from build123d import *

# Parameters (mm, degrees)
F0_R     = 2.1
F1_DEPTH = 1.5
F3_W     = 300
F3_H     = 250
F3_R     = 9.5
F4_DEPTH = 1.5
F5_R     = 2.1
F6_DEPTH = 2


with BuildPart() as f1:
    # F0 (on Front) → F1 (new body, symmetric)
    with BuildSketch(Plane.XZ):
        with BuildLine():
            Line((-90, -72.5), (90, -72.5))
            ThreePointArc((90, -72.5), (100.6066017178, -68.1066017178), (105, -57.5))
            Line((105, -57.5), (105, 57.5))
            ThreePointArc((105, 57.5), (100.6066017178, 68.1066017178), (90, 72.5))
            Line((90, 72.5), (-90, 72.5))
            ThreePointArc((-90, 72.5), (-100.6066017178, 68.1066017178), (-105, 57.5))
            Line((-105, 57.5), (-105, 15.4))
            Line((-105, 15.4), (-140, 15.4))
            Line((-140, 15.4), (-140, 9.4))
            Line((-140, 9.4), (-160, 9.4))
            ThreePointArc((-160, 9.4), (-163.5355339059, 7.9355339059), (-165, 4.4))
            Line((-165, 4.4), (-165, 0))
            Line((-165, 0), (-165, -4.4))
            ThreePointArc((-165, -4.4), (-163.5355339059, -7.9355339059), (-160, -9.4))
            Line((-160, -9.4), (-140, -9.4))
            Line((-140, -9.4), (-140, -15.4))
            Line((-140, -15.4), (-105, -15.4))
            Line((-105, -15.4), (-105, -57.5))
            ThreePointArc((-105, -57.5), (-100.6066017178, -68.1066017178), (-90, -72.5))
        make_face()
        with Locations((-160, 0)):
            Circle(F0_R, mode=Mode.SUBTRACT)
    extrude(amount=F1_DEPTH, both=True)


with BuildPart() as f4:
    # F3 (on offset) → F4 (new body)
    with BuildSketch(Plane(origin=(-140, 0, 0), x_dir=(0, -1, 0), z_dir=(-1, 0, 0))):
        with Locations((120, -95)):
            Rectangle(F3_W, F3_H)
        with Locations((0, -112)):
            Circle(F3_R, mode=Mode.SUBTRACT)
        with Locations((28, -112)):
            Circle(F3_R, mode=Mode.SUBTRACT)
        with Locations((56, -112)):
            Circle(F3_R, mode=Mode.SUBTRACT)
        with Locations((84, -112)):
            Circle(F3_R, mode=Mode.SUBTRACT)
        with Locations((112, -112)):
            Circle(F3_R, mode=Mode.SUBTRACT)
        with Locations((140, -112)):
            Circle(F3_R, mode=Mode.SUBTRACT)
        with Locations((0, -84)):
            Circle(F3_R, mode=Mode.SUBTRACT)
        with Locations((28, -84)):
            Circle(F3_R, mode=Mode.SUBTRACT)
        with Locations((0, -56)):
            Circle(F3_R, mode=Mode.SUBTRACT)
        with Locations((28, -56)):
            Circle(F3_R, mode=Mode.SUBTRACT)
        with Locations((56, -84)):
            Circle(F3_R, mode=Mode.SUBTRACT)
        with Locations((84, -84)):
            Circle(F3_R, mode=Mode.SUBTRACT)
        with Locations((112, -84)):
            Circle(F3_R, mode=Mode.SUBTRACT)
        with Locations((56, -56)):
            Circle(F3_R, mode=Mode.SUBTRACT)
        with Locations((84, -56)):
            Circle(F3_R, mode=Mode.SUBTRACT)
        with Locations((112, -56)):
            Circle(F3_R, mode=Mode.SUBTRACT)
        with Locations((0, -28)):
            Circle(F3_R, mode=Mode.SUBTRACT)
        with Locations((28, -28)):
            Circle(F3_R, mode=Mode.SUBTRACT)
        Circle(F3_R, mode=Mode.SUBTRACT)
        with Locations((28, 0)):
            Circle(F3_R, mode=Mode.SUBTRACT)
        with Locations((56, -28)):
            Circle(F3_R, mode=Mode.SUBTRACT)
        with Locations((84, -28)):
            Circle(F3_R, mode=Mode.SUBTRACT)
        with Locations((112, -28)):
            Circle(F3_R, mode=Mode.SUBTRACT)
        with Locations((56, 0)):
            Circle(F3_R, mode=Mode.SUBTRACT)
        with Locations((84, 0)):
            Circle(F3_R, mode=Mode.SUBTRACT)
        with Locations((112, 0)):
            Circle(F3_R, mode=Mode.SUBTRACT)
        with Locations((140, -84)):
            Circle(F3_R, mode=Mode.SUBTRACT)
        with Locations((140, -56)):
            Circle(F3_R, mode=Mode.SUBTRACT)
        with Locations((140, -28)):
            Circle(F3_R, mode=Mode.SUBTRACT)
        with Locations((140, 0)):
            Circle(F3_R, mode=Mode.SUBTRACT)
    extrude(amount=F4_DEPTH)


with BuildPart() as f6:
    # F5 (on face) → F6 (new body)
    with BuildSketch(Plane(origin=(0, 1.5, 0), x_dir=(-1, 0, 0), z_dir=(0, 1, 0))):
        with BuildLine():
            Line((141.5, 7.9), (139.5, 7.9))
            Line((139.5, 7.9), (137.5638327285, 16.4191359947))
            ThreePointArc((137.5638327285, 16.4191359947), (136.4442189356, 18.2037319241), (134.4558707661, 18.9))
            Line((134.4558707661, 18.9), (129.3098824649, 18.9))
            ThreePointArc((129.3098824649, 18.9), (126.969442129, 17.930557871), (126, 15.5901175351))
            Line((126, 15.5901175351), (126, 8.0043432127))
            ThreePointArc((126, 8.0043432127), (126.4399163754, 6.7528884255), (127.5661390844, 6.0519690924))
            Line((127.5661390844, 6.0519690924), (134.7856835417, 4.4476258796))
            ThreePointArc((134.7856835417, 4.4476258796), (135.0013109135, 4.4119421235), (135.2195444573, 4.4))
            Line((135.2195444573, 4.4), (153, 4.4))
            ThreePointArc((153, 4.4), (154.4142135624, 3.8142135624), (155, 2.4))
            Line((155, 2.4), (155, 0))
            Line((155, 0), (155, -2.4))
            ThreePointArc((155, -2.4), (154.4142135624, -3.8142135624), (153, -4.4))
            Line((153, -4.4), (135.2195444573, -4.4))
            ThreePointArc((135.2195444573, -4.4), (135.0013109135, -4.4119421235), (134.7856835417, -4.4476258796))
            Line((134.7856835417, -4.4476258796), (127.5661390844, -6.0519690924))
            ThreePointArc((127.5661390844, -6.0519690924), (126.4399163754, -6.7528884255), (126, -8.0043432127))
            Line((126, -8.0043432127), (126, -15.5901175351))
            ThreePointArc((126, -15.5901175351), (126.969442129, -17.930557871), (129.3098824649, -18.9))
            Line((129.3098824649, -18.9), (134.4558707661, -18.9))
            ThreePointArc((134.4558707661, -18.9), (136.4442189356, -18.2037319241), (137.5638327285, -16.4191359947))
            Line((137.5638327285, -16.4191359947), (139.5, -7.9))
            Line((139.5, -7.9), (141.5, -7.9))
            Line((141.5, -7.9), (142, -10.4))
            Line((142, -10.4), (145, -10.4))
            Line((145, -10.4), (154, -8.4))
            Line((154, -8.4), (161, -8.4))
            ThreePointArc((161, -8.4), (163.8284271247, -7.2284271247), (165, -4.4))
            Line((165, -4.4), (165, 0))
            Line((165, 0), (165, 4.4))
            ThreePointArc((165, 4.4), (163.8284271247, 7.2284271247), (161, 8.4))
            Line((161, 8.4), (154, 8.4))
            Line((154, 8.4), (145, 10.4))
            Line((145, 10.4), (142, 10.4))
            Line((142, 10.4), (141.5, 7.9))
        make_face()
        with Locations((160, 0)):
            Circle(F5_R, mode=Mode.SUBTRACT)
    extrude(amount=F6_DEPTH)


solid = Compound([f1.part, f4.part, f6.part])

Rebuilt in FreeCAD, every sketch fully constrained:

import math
import FreeCAD as App
import Part
import Sketcher
from FreeCAD import Vector
Q = App.Units.Quantity

doc = App.newDocument("Part")
body = doc.addObject("PartDesign::Body", "Body")

# Sketch on XZ plane
sketch1 = body.newObject("Sketcher::SketchObject", "Sketch")
sketch1.AttachmentSupport = (doc.getObject("XZ_Plane"), [""])
sketch1.MapMode = "FlatFace"
sketch1.addGeometry(Part.LineSegment(Vector(-90, -72.5, 0), Vector(90, -72.5, 0)), False)
sketch1.addGeometry(Part.ArcOfCircle(Part.Circle(Vector(90, -57.5, 0), Vector(0, 0, 1), 15), math.radians(-90), math.radians(0)), False)
sketch1.addGeometry(Part.LineSegment(Vector(105, -57.5, 0), Vector(105, 57.5, 0)), False)
sketch1.addGeometry(Part.ArcOfCircle(Part.Circle(Vector(90, 57.5, 0), Vector(0, 0, 1), 15), math.radians(0), math.radians(90)), False)
sketch1.addGeometry(Part.LineSegment(Vector(90, 72.5, 0), Vector(-90, 72.5, 0)), False)
sketch1.addGeometry(Part.ArcOfCircle(Part.Circle(Vector(-90, 57.5, 0), Vector(0, 0, 1), 15), math.radians(90), math.radians(180)), False)
sketch1.addGeometry(Part.LineSegment(Vector(-105, 57.5, 0), Vector(-105, 15.4, 0)), False)
sketch1.addGeometry(Part.LineSegment(Vector(-105, 15.4, 0), Vector(-140, 15.4, 0)), False)
sketch1.addGeometry(Part.LineSegment(Vector(-140, 15.4, 0), Vector(-140, 9.4, 0)), False)
sketch1.addGeometry(Part.LineSegment(Vector(-140, 9.4, 0), Vector(-160, 9.4, 0)), False)
sketch1.addGeometry(Part.ArcOfCircle(Part.Circle(Vector(-160, 4.4, 0), Vector(0, 0, 1), 5), math.radians(90), math.radians(180)), False)
sketch1.addGeometry(Part.LineSegment(Vector(-165, 4.4, 0), Vector(-165, -4.4, 0)), False)
sketch1.addGeometry(Part.ArcOfCircle(Part.Circle(Vector(-160, -4.4, 0), Vector(0, 0, 1), 5), math.radians(180), math.radians(270)), False)
sketch1.addGeometry(Part.LineSegment(Vector(-160, -9.4, 0), Vector(-140, -9.4, 0)), False)
sketch1.addGeometry(Part.LineSegment(Vector(-140, -9.4, 0), Vector(-140, -15.4, 0)), False)
sketch1.addGeometry(Part.LineSegment(Vector(-140, -15.4, 0), Vector(-105, -15.4, 0)), False)
sketch1.addGeometry(Part.LineSegment(Vector(-105, -15.4, 0), Vector(-105, -57.5, 0)), False)
sketch1.addGeometry(Part.ArcOfCircle(Part.Circle(Vector(-90, -57.5, 0), Vector(0, 0, 1), 15), math.radians(180), math.radians(270)), False)
sketch1.addGeometry(Part.Circle(Vector(-160, 0, 0), Vector(0, 0, 1), 2.1), False)
sketch1.addConstraint(Sketcher.Constraint("Tangent", 0, 2, 1, 1))
sketch1.addConstraint(Sketcher.Constraint("Tangent", 1, 2, 2, 1))
sketch1.addConstraint(Sketcher.Constraint("Tangent", 2, 2, 3, 1))
sketch1.addConstraint(Sketcher.Constraint("Tangent", 3, 2, 4, 1))
sketch1.addConstraint(Sketcher.Constraint("Tangent", 4, 2, 5, 1))
sketch1.addConstraint(Sketcher.Constraint("Tangent", 5, 2, 6, 1))
sketch1.addConstraint(Sketcher.Constraint("Coincident", 6, 2, 7, 1))
sketch1.addConstraint(Sketcher.Constraint("Coincident", 7, 2, 8, 1))
sketch1.addConstraint(Sketcher.Constraint("Coincident", 8, 2, 9, 1))
sketch1.addConstraint(Sketcher.Constraint("Tangent", 9, 2, 10, 1))
sketch1.addConstraint(Sketcher.Constraint("Tangent", 10, 2, 11, 1))
sketch1.addConstraint(Sketcher.Constraint("Tangent", 11, 2, 12, 1))
sketch1.addConstraint(Sketcher.Constraint("Tangent", 12, 2, 13, 1))
sketch1.addConstraint(Sketcher.Constraint("Coincident", 13, 2, 14, 1))
sketch1.addConstraint(Sketcher.Constraint("Coincident", 14, 2, 15, 1))
sketch1.addConstraint(Sketcher.Constraint("Coincident", 15, 2, 16, 1))
sketch1.addConstraint(Sketcher.Constraint("Tangent", 16, 2, 17, 1))
sketch1.addConstraint(Sketcher.Constraint("Tangent", 17, 2, 0, 1))
sketch1.addConstraint(Sketcher.Constraint("Horizontal", 0))
sketch1.addConstraint(Sketcher.Constraint("Vertical", 2))
sketch1.addConstraint(Sketcher.Constraint("Horizontal", 4))
sketch1.addConstraint(Sketcher.Constraint("Vertical", 6))
sketch1.addConstraint(Sketcher.Constraint("Horizontal", 7))
sketch1.addConstraint(Sketcher.Constraint("Vertical", 8))
sketch1.addConstraint(Sketcher.Constraint("Horizontal", 9))
sketch1.addConstraint(Sketcher.Constraint("Vertical", 11))
sketch1.addConstraint(Sketcher.Constraint("Horizontal", 13))
sketch1.addConstraint(Sketcher.Constraint("Vertical", 14))
sketch1.addConstraint(Sketcher.Constraint("Horizontal", 15))
sketch1.addConstraint(Sketcher.Constraint("Vertical", 16))
sketch1.addConstraint(Sketcher.Constraint("Equal", 1, 3))
sketch1.addConstraint(Sketcher.Constraint("Equal", 3, 5))
sketch1.addConstraint(Sketcher.Constraint("Equal", 10, 12))
sketch1.addConstraint(Sketcher.Constraint("Equal", 5, 17))
sketch1.addConstraint(Sketcher.Constraint("Symmetric", 1, 3, 5, 3, -1, 1))
sketch1.addConstraint(Sketcher.Constraint("Symmetric", 8, 2, 13, 2, -1))
sketch1.addConstraint(Sketcher.Constraint("Symmetric", 6, 2, 15, 2, -1))
sketch1.addConstraint(Sketcher.Constraint("PointOnObject", 18, 3, -1))
sketch1.addConstraint(Sketcher.Constraint("Vertical", 12, 3, 18, 3))
sketch1.addConstraint(Sketcher.Constraint("Radius", 1, Q("15 mm")))
sketch1.addConstraint(Sketcher.Constraint("Radius", 10, Q("5 mm")))
sketch1.addConstraint(Sketcher.Constraint("Diameter", 18, Q("4.2 mm")))
sketch1.addConstraint(Sketcher.Constraint("DistanceX", 0, 1, 0, 2, Q("180 mm")))
sketch1.addConstraint(Sketcher.Constraint("DistanceX", 7, 2, 7, 1, Q("35 mm")))
sketch1.addConstraint(Sketcher.Constraint("DistanceX", 9, 2, 9, 1, Q("20 mm")))
sketch1.addConstraint(Sketcher.Constraint("DistanceY", 2, 1, 2, 2, Q("115 mm")))
sketch1.addConstraint(Sketcher.Constraint("DistanceY", 8, 2, 8, 1, Q("6 mm")))
sketch1.addConstraint(Sketcher.Constraint("DistanceY", 6, 2, 6, 1, Q("42.1 mm")))
pad1 = body.newObject("PartDesign::Pad", "Pad")
pad1.Profile = sketch1
pad1.Length = 3
pad1.Midplane = True
body2 = doc.addObject("PartDesign::Body", "Body001")

# Sketch on YZ plane
sketch2 = body2.newObject("Sketcher::SketchObject", "Sketch001")
sketch2.AttachmentSupport = (doc.getObject("YZ_Plane001"), [""])
sketch2.MapMode = "FlatFace"
sketch2.AttachmentOffset = App.Placement(Vector(0, 0, -140), App.Rotation())
sketch2.addGeometry(Part.LineSegment(Vector(30, 30, 0), Vector(30, -220, 0)), False)
sketch2.addGeometry(Part.LineSegment(Vector(30, -220, 0), Vector(-270, -220, 0)), False)
sketch2.addGeometry(Part.LineSegment(Vector(-270, -220, 0), Vector(-270, 30, 0)), False)
sketch2.addGeometry(Part.LineSegment(Vector(-270, 30, 0), Vector(30, 30, 0)), False)
sketch2.addGeometry(Part.Circle(Vector(0, -112, 0), Vector(0, 0, 1), 9.5), False)
sketch2.addGeometry(Part.Circle(Vector(-28, -112, 0), Vector(0, 0, 1), 9.5), False)
sketch2.addGeometry(Part.Circle(Vector(-56, -112, 0), Vector(0, 0, 1), 9.5), False)
sketch2.addGeometry(Part.Circle(Vector(0, -84, 0), Vector(0, 0, 1), 9.5), False)
sketch2.addGeometry(Part.Circle(Vector(-28, -84, 0), Vector(0, 0, 1), 9.5), False)
sketch2.addGeometry(Part.Circle(Vector(-56, -84, 0), Vector(0, 0, 1), 9.5), False)
sketch2.addGeometry(Part.Circle(Vector(-84, -112, 0), Vector(0, 0, 1), 9.5), False)
sketch2.addGeometry(Part.Circle(Vector(-112, -112, 0), Vector(0, 0, 1), 9.5), False)
sketch2.addGeometry(Part.Circle(Vector(-140, -112, 0), Vector(0, 0, 1), 9.5), False)
sketch2.addGeometry(Part.Circle(Vector(-84, -84, 0), Vector(0, 0, 1), 9.5), False)
sketch2.addGeometry(Part.Circle(Vector(-112, -84, 0), Vector(0, 0, 1), 9.5), False)
sketch2.addGeometry(Part.Circle(Vector(-140, -84, 0), Vector(0, 0, 1), 9.5), False)
sketch2.addGeometry(Part.Circle(Vector(0, -56, 0), Vector(0, 0, 1), 9.5), False)
sketch2.addGeometry(Part.Circle(Vector(-28, -56, 0), Vector(0, 0, 1), 9.5), False)
sketch2.addGeometry(Part.Circle(Vector(0, -28, 0), Vector(0, 0, 1), 9.5), False)
sketch2.addGeometry(Part.Circle(Vector(-28, -28, 0), Vector(0, 0, 1), 9.5), False)
sketch2.addGeometry(Part.Circle(Vector(-56, -56, 0), Vector(0, 0, 1), 9.5), False)
sketch2.addGeometry(Part.Circle(Vector(-56, -28, 0), Vector(0, 0, 1), 9.5), False)
sketch2.addGeometry(Part.Circle(Vector(0, 0, 0), Vector(0, 0, 1), 9.5), False)
sketch2.addGeometry(Part.Circle(Vector(-28, 0, 0), Vector(0, 0, 1), 9.5), False)
sketch2.addGeometry(Part.Circle(Vector(-56, 0, 0), Vector(0, 0, 1), 9.5), False)
sketch2.addGeometry(Part.Circle(Vector(-84, -56, 0), Vector(0, 0, 1), 9.5), False)
sketch2.addGeometry(Part.Circle(Vector(-84, -28, 0), Vector(0, 0, 1), 9.5), False)
sketch2.addGeometry(Part.Circle(Vector(-112, -56, 0), Vector(0, 0, 1), 9.5), False)
sketch2.addGeometry(Part.Circle(Vector(-140, -56, 0), Vector(0, 0, 1), 9.5), False)
sketch2.addGeometry(Part.Circle(Vector(-112, -28, 0), Vector(0, 0, 1), 9.5), False)
sketch2.addGeometry(Part.Circle(Vector(-140, -28, 0), Vector(0, 0, 1), 9.5), False)
sketch2.addGeometry(Part.Circle(Vector(-84, 0, 0), Vector(0, 0, 1), 9.5), False)
sketch2.addGeometry(Part.Circle(Vector(-112, 0, 0), Vector(0, 0, 1), 9.5), False)
sketch2.addGeometry(Part.Circle(Vector(-140, 0, 0), Vector(0, 0, 1), 9.5), False)
sketch2.addConstraint(Sketcher.Constraint("Coincident", 0, 2, 1, 1))
sketch2.addConstraint(Sketcher.Constraint("Coincident", 1, 2, 2, 1))
sketch2.addConstraint(Sketcher.Constraint("Coincident", 2, 2, 3, 1))
sketch2.addConstraint(Sketcher.Constraint("Coincident", 3, 2, 0, 1))
sketch2.addConstraint(Sketcher.Constraint("Vertical", 0))
sketch2.addConstraint(Sketcher.Constraint("Horizontal", 1))
sketch2.addConstraint(Sketcher.Constraint("Vertical", 2))
sketch2.addConstraint(Sketcher.Constraint("Horizontal", 3))
sketch2.addConstraint(Sketcher.Constraint("Coincident", 22, 3, -1, 1))
sketch2.addConstraint(Sketcher.Constraint("Equal", 4, 5))
sketch2.addConstraint(Sketcher.Constraint("Equal", 5, 6))
sketch2.addConstraint(Sketcher.Constraint("Equal", 6, 7))
sketch2.addConstraint(Sketcher.Constraint("Equal", 7, 8))
sketch2.addConstraint(Sketcher.Constraint("Equal", 8, 9))
sketch2.addConstraint(Sketcher.Constraint("Equal", 9, 10))
sketch2.addConstraint(Sketcher.Constraint("Equal", 10, 11))
sketch2.addConstraint(Sketcher.Constraint("Equal", 11, 12))
sketch2.addConstraint(Sketcher.Constraint("Equal", 12, 13))
sketch2.addConstraint(Sketcher.Constraint("Equal", 13, 14))
sketch2.addConstraint(Sketcher.Constraint("Equal", 14, 15))
sketch2.addConstraint(Sketcher.Constraint("Equal", 15, 16))
sketch2.addConstraint(Sketcher.Constraint("Equal", 16, 17))
sketch2.addConstraint(Sketcher.Constraint("Equal", 17, 18))
sketch2.addConstraint(Sketcher.Constraint("Equal", 18, 19))
sketch2.addConstraint(Sketcher.Constraint("Equal", 19, 20))
sketch2.addConstraint(Sketcher.Constraint("Equal", 20, 21))
sketch2.addConstraint(Sketcher.Constraint("Equal", 21, 22))
sketch2.addConstraint(Sketcher.Constraint("Equal", 22, 23))
sketch2.addConstraint(Sketcher.Constraint("Equal", 23, 24))
sketch2.addConstraint(Sketcher.Constraint("Equal", 24, 25))
sketch2.addConstraint(Sketcher.Constraint("Equal", 25, 26))
sketch2.addConstraint(Sketcher.Constraint("Equal", 26, 27))
sketch2.addConstraint(Sketcher.Constraint("Equal", 27, 28))
sketch2.addConstraint(Sketcher.Constraint("Equal", 28, 29))
sketch2.addConstraint(Sketcher.Constraint("Equal", 29, 30))
sketch2.addConstraint(Sketcher.Constraint("Equal", 30, 31))
sketch2.addConstraint(Sketcher.Constraint("Equal", 31, 32))
sketch2.addConstraint(Sketcher.Constraint("Equal", 32, 33))
sketch2.addConstraint(Sketcher.Constraint("PointOnObject", 4, 3, -2))
sketch2.addConstraint(Sketcher.Constraint("PointOnObject", 7, 3, -2))
sketch2.addConstraint(Sketcher.Constraint("PointOnObject", 16, 3, -2))
sketch2.addConstraint(Sketcher.Constraint("PointOnObject", 18, 3, -2))
sketch2.addConstraint(Sketcher.Constraint("PointOnObject", 23, 3, -1))
sketch2.addConstraint(Sketcher.Constraint("PointOnObject", 24, 3, -1))
sketch2.addConstraint(Sketcher.Constraint("PointOnObject", 31, 3, -1))
sketch2.addConstraint(Sketcher.Constraint("PointOnObject", 32, 3, -1))
sketch2.addConstraint(Sketcher.Constraint("PointOnObject", 33, 3, -1))
sketch2.addConstraint(Sketcher.Constraint("Horizontal", 4, 3, 5, 3))
sketch2.addConstraint(Sketcher.Constraint("Horizontal", 5, 3, 6, 3))
sketch2.addConstraint(Sketcher.Constraint("Horizontal", 7, 3, 8, 3))
sketch2.addConstraint(Sketcher.Constraint("Horizontal", 8, 3, 9, 3))
sketch2.addConstraint(Sketcher.Constraint("Horizontal", 6, 3, 10, 3))
sketch2.addConstraint(Sketcher.Constraint("Horizontal", 10, 3, 11, 3))
sketch2.addConstraint(Sketcher.Constraint("Horizontal", 11, 3, 12, 3))
sketch2.addConstraint(Sketcher.Constraint("Horizontal", 9, 3, 13, 3))
sketch2.addConstraint(Sketcher.Constraint("Horizontal", 13, 3, 14, 3))
sketch2.addConstraint(Sketcher.Constraint("Horizontal", 14, 3, 15, 3))
sketch2.addConstraint(Sketcher.Constraint("Horizontal", 16, 3, 17, 3))
sketch2.addConstraint(Sketcher.Constraint("Horizontal", 18, 3, 19, 3))
sketch2.addConstraint(Sketcher.Constraint("Horizontal", 17, 3, 20, 3))
sketch2.addConstraint(Sketcher.Constraint("Horizontal", 19, 3, 21, 3))
sketch2.addConstraint(Sketcher.Constraint("Horizontal", 20, 3, 25, 3))
sketch2.addConstraint(Sketcher.Constraint("Horizontal", 21, 3, 26, 3))
sketch2.addConstraint(Sketcher.Constraint("Horizontal", 25, 3, 27, 3))
sketch2.addConstraint(Sketcher.Constraint("Horizontal", 27, 3, 28, 3))
sketch2.addConstraint(Sketcher.Constraint("Horizontal", 26, 3, 29, 3))
sketch2.addConstraint(Sketcher.Constraint("Horizontal", 29, 3, 30, 3))
sketch2.addConstraint(Sketcher.Constraint("Vertical", 5, 3, 8, 3))
sketch2.addConstraint(Sketcher.Constraint("Vertical", 6, 3, 9, 3))
sketch2.addConstraint(Sketcher.Constraint("Vertical", 10, 3, 13, 3))
sketch2.addConstraint(Sketcher.Constraint("Vertical", 11, 3, 14, 3))
sketch2.addConstraint(Sketcher.Constraint("Vertical", 12, 3, 15, 3))
sketch2.addConstraint(Sketcher.Constraint("Vertical", 8, 3, 17, 3))
sketch2.addConstraint(Sketcher.Constraint("Vertical", 17, 3, 19, 3))
sketch2.addConstraint(Sketcher.Constraint("Vertical", 9, 3, 20, 3))
sketch2.addConstraint(Sketcher.Constraint("Vertical", 20, 3, 21, 3))
sketch2.addConstraint(Sketcher.Constraint("Vertical", 19, 3, 23, 3))
sketch2.addConstraint(Sketcher.Constraint("Vertical", 21, 3, 24, 3))
sketch2.addConstraint(Sketcher.Constraint("Vertical", 13, 3, 25, 3))
sketch2.addConstraint(Sketcher.Constraint("Vertical", 25, 3, 26, 3))
sketch2.addConstraint(Sketcher.Constraint("Vertical", 14, 3, 27, 3))
sketch2.addConstraint(Sketcher.Constraint("Vertical", 15, 3, 28, 3))
sketch2.addConstraint(Sketcher.Constraint("Vertical", 27, 3, 29, 3))
sketch2.addConstraint(Sketcher.Constraint("Vertical", 28, 3, 30, 3))
sketch2.addConstraint(Sketcher.Constraint("Vertical", 26, 3, 31, 3))
sketch2.addConstraint(Sketcher.Constraint("Vertical", 29, 3, 32, 3))
sketch2.addConstraint(Sketcher.Constraint("Vertical", 30, 3, 33, 3))
sketch2.addConstraint(Sketcher.Constraint("Diameter", 4, Q("19 mm")))
sketch2.addConstraint(Sketcher.Constraint("DistanceX", 1, 2, 1, 1, Q("300 mm")))
sketch2.addConstraint(Sketcher.Constraint("DistanceY", 0, 2, 0, 1, Q("250 mm")))
sketch2.addConstraint(Sketcher.Constraint("DistanceY", 4, 3, -1, 1, Q("112 mm")))
sketch2.addConstraint(Sketcher.Constraint("DistanceX", 5, 3, -1, 1, Q("28 mm")))
sketch2.addConstraint(Sketcher.Constraint("DistanceX", 6, 3, -1, 1, Q("56 mm")))
sketch2.addConstraint(Sketcher.Constraint("DistanceY", 7, 3, -1, 1, Q("84 mm")))
sketch2.addConstraint(Sketcher.Constraint("DistanceX", 10, 3, -1, 1, Q("84 mm")))
sketch2.addConstraint(Sketcher.Constraint("DistanceX", 11, 3, -1, 1, Q("112 mm")))
sketch2.addConstraint(Sketcher.Constraint("DistanceX", 12, 3, -1, 1, Q("140 mm")))
sketch2.addConstraint(Sketcher.Constraint("DistanceY", 16, 3, -1, 1, Q("56 mm")))
sketch2.addConstraint(Sketcher.Constraint("DistanceY", 18, 3, -1, 1, Q("28 mm")))
sketch2.addConstraint(Sketcher.Constraint("DistanceX", -1, 1, 0, 2, Q("30 mm")))
sketch2.addConstraint(Sketcher.Constraint("DistanceY", 0, 2, -1, 1, Q("220 mm")))
pad2 = body2.newObject("PartDesign::Pad", "Pad001")
pad2.Profile = sketch2
pad2.Length = 1.5
pad2.Reversed = True
body3 = doc.addObject("PartDesign::Body", "Body002")

# Sketch on XZ plane
sketch3 = body3.newObject("Sketcher::SketchObject", "Sketch002")
sketch3.AttachmentSupport = (doc.getObject("XZ_Plane002"), [""])
sketch3.MapMode = "FlatFace"
sketch3.AttachmentOffset = App.Placement(Vector(0, 0, -1.5), App.Rotation())
sketch3.addGeometry(Part.LineSegment(Vector(-141.5, 7.9, 0), Vector(-139.5, 7.9, 0)), False)
sketch3.addGeometry(Part.LineSegment(Vector(-139.5, 7.9, 0), Vector(-137.563833, 16.419136, 0)), False)
sketch3.addGeometry(Part.ArcOfCircle(Part.Circle(Vector(-134.455871, 15.712781, 0), Vector(0, 0, 1), 3.187219), math.radians(90), math.radians(167.195734)), False)
sketch3.addGeometry(Part.LineSegment(Vector(-134.455871, 18.9, 0), Vector(-129.309882, 18.9, 0)), False)
sketch3.addGeometry(Part.ArcOfCircle(Part.Circle(Vector(-129.309882, 15.590118, 0), Vector(0, 0, 1), 3.309882), math.radians(0), math.radians(90)), False)
sketch3.addGeometry(Part.LineSegment(Vector(-126, 15.590118, 0), Vector(-126, 8.004343, 0)), False)
sketch3.addGeometry(Part.ArcOfCircle(Part.Circle(Vector(-128, 8.004343, 0), Vector(0, 0, 1), 2), math.radians(-77.471192), math.radians(0)), False)
sketch3.addGeometry(Part.LineSegment(Vector(-127.566139, 6.051969, 0), Vector(-134.785684, 4.447626, 0)), False)
sketch3.addGeometry(Part.ArcOfCircle(Part.Circle(Vector(-135.219544, 6.4, 0), Vector(0, 0, 1), 2), math.radians(-90), math.radians(-77.471192)), False)
sketch3.addGeometry(Part.LineSegment(Vector(-135.219544, 4.4, 0), Vector(-153, 4.4, 0)), False)
sketch3.addGeometry(Part.ArcOfCircle(Part.Circle(Vector(-153, 2.4, 0), Vector(0, 0, 1), 2), math.radians(90), math.radians(180)), False)
sketch3.addGeometry(Part.LineSegment(Vector(-155, 2.4, 0), Vector(-155, -2.4, 0)), False)
sketch3.addGeometry(Part.ArcOfCircle(Part.Circle(Vector(-153, -2.4, 0), Vector(0, 0, 1), 2), math.radians(180), math.radians(270)), False)
sketch3.addGeometry(Part.LineSegment(Vector(-153, -4.4, 0), Vector(-135.219544, -4.4, 0)), False)
sketch3.addGeometry(Part.ArcOfCircle(Part.Circle(Vector(-135.219544, -6.4, 0), Vector(0, 0, 1), 2), math.radians(77.471192), math.radians(90)), False)
sketch3.addGeometry(Part.LineSegment(Vector(-134.785684, -4.447626, 0), Vector(-127.566139, -6.051969, 0)), False)
sketch3.addGeometry(Part.ArcOfCircle(Part.Circle(Vector(-128, -8.004343, 0), Vector(0, 0, 1), 2), math.radians(0), math.radians(77.471192)), False)
sketch3.addGeometry(Part.LineSegment(Vector(-126, -8.004343, 0), Vector(-126, -15.590118, 0)), False)
sketch3.addGeometry(Part.ArcOfCircle(Part.Circle(Vector(-129.309882, -15.590118, 0), Vector(0, 0, 1), 3.309882), math.radians(-90), math.radians(0)), False)
sketch3.addGeometry(Part.LineSegment(Vector(-129.309882, -18.9, 0), Vector(-134.455871, -18.9, 0)), False)
sketch3.addGeometry(Part.ArcOfCircle(Part.Circle(Vector(-134.455871, -15.712781, 0), Vector(0, 0, 1), 3.187219), math.radians(-167.195734), math.radians(-90)), False)
sketch3.addGeometry(Part.LineSegment(Vector(-137.563833, -16.419136, 0), Vector(-139.5, -7.9, 0)), False)
sketch3.addGeometry(Part.LineSegment(Vector(-139.5, -7.9, 0), Vector(-141.5, -7.9, 0)), False)
sketch3.addGeometry(Part.LineSegment(Vector(-141.5, -7.9, 0), Vector(-142, -10.4, 0)), False)
sketch3.addGeometry(Part.LineSegment(Vector(-142, -10.4, 0), Vector(-145, -10.4, 0)), False)
sketch3.addGeometry(Part.LineSegment(Vector(-145, -10.4, 0), Vector(-154, -8.4, 0)), False)
sketch3.addGeometry(Part.LineSegment(Vector(-154, -8.4, 0), Vector(-161, -8.4, 0)), False)
sketch3.addGeometry(Part.ArcOfCircle(Part.Circle(Vector(-161, -4.4, 0), Vector(0, 0, 1), 4), math.radians(180), math.radians(270)), False)
sketch3.addGeometry(Part.LineSegment(Vector(-165, -4.4, 0), Vector(-165, 4.4, 0)), False)
sketch3.addGeometry(Part.ArcOfCircle(Part.Circle(Vector(-161, 4.4, 0), Vector(0, 0, 1), 4), math.radians(90), math.radians(180)), False)
sketch3.addGeometry(Part.LineSegment(Vector(-161, 8.4, 0), Vector(-154, 8.4, 0)), False)
sketch3.addGeometry(Part.LineSegment(Vector(-154, 8.4, 0), Vector(-145, 10.4, 0)), False)
sketch3.addGeometry(Part.LineSegment(Vector(-145, 10.4, 0), Vector(-142, 10.4, 0)), False)
sketch3.addGeometry(Part.LineSegment(Vector(-142, 10.4, 0), Vector(-141.5, 7.9, 0)), False)
sketch3.addGeometry(Part.Circle(Vector(-160, 0, 0), Vector(0, 0, 1), 2.1), False)
sketch3.addConstraint(Sketcher.Constraint("Coincident", 0, 2, 1, 1))
sketch3.addConstraint(Sketcher.Constraint("Tangent", 1, 2, 2, 2))
sketch3.addConstraint(Sketcher.Constraint("Tangent", 2, 1, 3, 1))
sketch3.addConstraint(Sketcher.Constraint("Tangent", 3, 2, 4, 2))
sketch3.addConstraint(Sketcher.Constraint("Tangent", 4, 1, 5, 1))
sketch3.addConstraint(Sketcher.Constraint("Tangent", 5, 2, 6, 2))
sketch3.addConstraint(Sketcher.Constraint("Tangent", 6, 1, 7, 1))
sketch3.addConstraint(Sketcher.Constraint("Tangent", 7, 2, 8, 2))
sketch3.addConstraint(Sketcher.Constraint("Tangent", 8, 1, 9, 1))
sketch3.addConstraint(Sketcher.Constraint("Tangent", 9, 2, 10, 1))
sketch3.addConstraint(Sketcher.Constraint("Tangent", 10, 2, 11, 1))
sketch3.addConstraint(Sketcher.Constraint("Tangent", 11, 2, 12, 1))
sketch3.addConstraint(Sketcher.Constraint("Tangent", 12, 2, 13, 1))
sketch3.addConstraint(Sketcher.Constraint("Tangent", 13, 2, 14, 2))
sketch3.addConstraint(Sketcher.Constraint("Tangent", 14, 1, 15, 1))
sketch3.addConstraint(Sketcher.Constraint("Tangent", 15, 2, 16, 2))
sketch3.addConstraint(Sketcher.Constraint("Tangent", 16, 1, 17, 1))
sketch3.addConstraint(Sketcher.Constraint("Tangent", 17, 2, 18, 2))
sketch3.addConstraint(Sketcher.Constraint("Tangent", 18, 1, 19, 1))
sketch3.addConstraint(Sketcher.Constraint("Tangent", 19, 2, 20, 2))
sketch3.addConstraint(Sketcher.Constraint("Tangent", 20, 1, 21, 1))
sketch3.addConstraint(Sketcher.Constraint("Coincident", 21, 2, 22, 1))
sketch3.addConstraint(Sketcher.Constraint("Coincident", 22, 2, 23, 1))
sketch3.addConstraint(Sketcher.Constraint("Coincident", 23, 2, 24, 1))
sketch3.addConstraint(Sketcher.Constraint("Coincident", 24, 2, 25, 1))
sketch3.addConstraint(Sketcher.Constraint("Coincident", 25, 2, 26, 1))
sketch3.addConstraint(Sketcher.Constraint("Tangent", 26, 2, 27, 2))
sketch3.addConstraint(Sketcher.Constraint("Tangent", 27, 1, 28, 1))
sketch3.addConstraint(Sketcher.Constraint("Tangent", 28, 2, 29, 2))
sketch3.addConstraint(Sketcher.Constraint("Tangent", 29, 1, 30, 1))
sketch3.addConstraint(Sketcher.Constraint("Coincident", 30, 2, 31, 1))
sketch3.addConstraint(Sketcher.Constraint("Coincident", 31, 2, 32, 1))
sketch3.addConstraint(Sketcher.Constraint("Coincident", 32, 2, 33, 1))
sketch3.addConstraint(Sketcher.Constraint("Coincident", 33, 2, 0, 1))
sketch3.addConstraint(Sketcher.Constraint("Horizontal", 0))
sketch3.addConstraint(Sketcher.Constraint("Horizontal", 3))
sketch3.addConstraint(Sketcher.Constraint("Vertical", 5))
sketch3.addConstraint(Sketcher.Constraint("Horizontal", 9))
sketch3.addConstraint(Sketcher.Constraint("Vertical", 11))
sketch3.addConstraint(Sketcher.Constraint("Horizontal", 13))
sketch3.addConstraint(Sketcher.Constraint("Vertical", 17))
sketch3.addConstraint(Sketcher.Constraint("Horizontal", 19))
sketch3.addConstraint(Sketcher.Constraint("Horizontal", 22))
sketch3.addConstraint(Sketcher.Constraint("Horizontal", 24))
sketch3.addConstraint(Sketcher.Constraint("Horizontal", 26))
sketch3.addConstraint(Sketcher.Constraint("Vertical", 28))
sketch3.addConstraint(Sketcher.Constraint("Horizontal", 30))
sketch3.addConstraint(Sketcher.Constraint("Horizontal", 32))
sketch3.addConstraint(Sketcher.Constraint("Equal", 6, 8))
sketch3.addConstraint(Sketcher.Constraint("Equal", 8, 10))
sketch3.addConstraint(Sketcher.Constraint("Equal", 10, 12))
sketch3.addConstraint(Sketcher.Constraint("Equal", 12, 14))
sketch3.addConstraint(Sketcher.Constraint("Equal", 14, 16))
sketch3.addConstraint(Sketcher.Constraint("Equal", 4, 18))
sketch3.addConstraint(Sketcher.Constraint("Equal", 2, 20))
sketch3.addConstraint(Sketcher.Constraint("Equal", 27, 29))
sketch3.addConstraint(Sketcher.Constraint("Symmetric", 8, 3, 14, 3, -1))
sketch3.addConstraint(Sketcher.Constraint("Symmetric", 6, 3, 16, 3, -1))
sketch3.addConstraint(Sketcher.Constraint("Symmetric", 2, 3, 20, 3, -1))
sketch3.addConstraint(Sketcher.Constraint("Symmetric", 0, 2, 21, 2, -1))
sketch3.addConstraint(Sketcher.Constraint("Symmetric", 25, 2, 30, 2, -1))
sketch3.addConstraint(Sketcher.Constraint("Symmetric", 24, 2, 31, 2, -1))
sketch3.addConstraint(Sketcher.Constraint("PointOnObject", 34, 3, -1))
sketch3.addConstraint(Sketcher.Constraint("Parallel", 15, 25))
sketch3.addConstraint(Sketcher.Constraint("Horizontal", 29, 3, 8, 1))
sketch3.addConstraint(Sketcher.Constraint("Vertical", 23, 2, 32, 2))
sketch3.addConstraint(Sketcher.Constraint("Vertical", 22, 2, 33, 2))
sketch3.addConstraint(Sketcher.Constraint("Radius", 6, Q("2 mm")))
sketch3.addConstraint(Sketcher.Constraint("Radius", 27, Q("4 mm")))
sketch3.addConstraint(Sketcher.Constraint("Diameter", 34, Q("4.2 mm")))
sketch3.addConstraint(Sketcher.Constraint("DistanceX", 0, 1, 0, 2, Q("2 mm")))
sketch3.addConstraint(Sketcher.Constraint("DistanceX", 24, 2, 24, 1, Q("3 mm")))
sketch3.addConstraint(Sketcher.Constraint("DistanceX", 26, 2, 26, 1, Q("7 mm")))
sketch3.addConstraint(Sketcher.Constraint("DistanceY", 11, 2, 11, 1, Q("4.8 mm")))
sketch3.addConstraint(Sketcher.Constraint("DistanceX", 6, 3, -1, 1, Q("128 mm")))
sketch3.addConstraint(Sketcher.Constraint("DistanceX", 10, 3, -1, 1, Q("153 mm")))
sketch3.addConstraint(Sketcher.Constraint("DistanceX", 27, 3, -1, 1, Q("161 mm")))
sketch3.addConstraint(Sketcher.Constraint("DistanceX", 34, 3, -1, 1, Q("160 mm")))
sketch3.addConstraint(Sketcher.Constraint("DistanceX", 23, 2, -1, 1, Q("142 mm")))
sketch3.addConstraint(Sketcher.Constraint("DistanceY", 0, 2, 2, 1, Q("11 mm")))
sketch3.addConstraint(Sketcher.Constraint("DistanceY", 23, 2, 14, 3, Q("4 mm")))
sketch3.addConstraint(Sketcher.Constraint("DistanceX", 0, 2, -1, 1, Q("139.5 mm")))
sketch3.addConstraint(Sketcher.Constraint("DistanceY", -1, 1, 0, 2, Q("7.9 mm")))
sketch3.addConstraint(Sketcher.Constraint("Radius", 2, Q("3.187219 mm")))
sketch3.addConstraint(Sketcher.Constraint("Radius", 4, Q("3.309882 mm")))
sketch3.addConstraint(Sketcher.Constraint("DistanceX", 3, 1, 3, 2, Q("5.145988 mm")))
sketch3.addConstraint(Sketcher.Constraint("DistanceX", 9, 2, 9, 1, Q("17.780456 mm")))
pad3 = body3.newObject("PartDesign::Pad", "Pad002")
pad3.Profile = sketch3
pad3.Length = 2
pad3.Reversed = True

doc.recompute()
